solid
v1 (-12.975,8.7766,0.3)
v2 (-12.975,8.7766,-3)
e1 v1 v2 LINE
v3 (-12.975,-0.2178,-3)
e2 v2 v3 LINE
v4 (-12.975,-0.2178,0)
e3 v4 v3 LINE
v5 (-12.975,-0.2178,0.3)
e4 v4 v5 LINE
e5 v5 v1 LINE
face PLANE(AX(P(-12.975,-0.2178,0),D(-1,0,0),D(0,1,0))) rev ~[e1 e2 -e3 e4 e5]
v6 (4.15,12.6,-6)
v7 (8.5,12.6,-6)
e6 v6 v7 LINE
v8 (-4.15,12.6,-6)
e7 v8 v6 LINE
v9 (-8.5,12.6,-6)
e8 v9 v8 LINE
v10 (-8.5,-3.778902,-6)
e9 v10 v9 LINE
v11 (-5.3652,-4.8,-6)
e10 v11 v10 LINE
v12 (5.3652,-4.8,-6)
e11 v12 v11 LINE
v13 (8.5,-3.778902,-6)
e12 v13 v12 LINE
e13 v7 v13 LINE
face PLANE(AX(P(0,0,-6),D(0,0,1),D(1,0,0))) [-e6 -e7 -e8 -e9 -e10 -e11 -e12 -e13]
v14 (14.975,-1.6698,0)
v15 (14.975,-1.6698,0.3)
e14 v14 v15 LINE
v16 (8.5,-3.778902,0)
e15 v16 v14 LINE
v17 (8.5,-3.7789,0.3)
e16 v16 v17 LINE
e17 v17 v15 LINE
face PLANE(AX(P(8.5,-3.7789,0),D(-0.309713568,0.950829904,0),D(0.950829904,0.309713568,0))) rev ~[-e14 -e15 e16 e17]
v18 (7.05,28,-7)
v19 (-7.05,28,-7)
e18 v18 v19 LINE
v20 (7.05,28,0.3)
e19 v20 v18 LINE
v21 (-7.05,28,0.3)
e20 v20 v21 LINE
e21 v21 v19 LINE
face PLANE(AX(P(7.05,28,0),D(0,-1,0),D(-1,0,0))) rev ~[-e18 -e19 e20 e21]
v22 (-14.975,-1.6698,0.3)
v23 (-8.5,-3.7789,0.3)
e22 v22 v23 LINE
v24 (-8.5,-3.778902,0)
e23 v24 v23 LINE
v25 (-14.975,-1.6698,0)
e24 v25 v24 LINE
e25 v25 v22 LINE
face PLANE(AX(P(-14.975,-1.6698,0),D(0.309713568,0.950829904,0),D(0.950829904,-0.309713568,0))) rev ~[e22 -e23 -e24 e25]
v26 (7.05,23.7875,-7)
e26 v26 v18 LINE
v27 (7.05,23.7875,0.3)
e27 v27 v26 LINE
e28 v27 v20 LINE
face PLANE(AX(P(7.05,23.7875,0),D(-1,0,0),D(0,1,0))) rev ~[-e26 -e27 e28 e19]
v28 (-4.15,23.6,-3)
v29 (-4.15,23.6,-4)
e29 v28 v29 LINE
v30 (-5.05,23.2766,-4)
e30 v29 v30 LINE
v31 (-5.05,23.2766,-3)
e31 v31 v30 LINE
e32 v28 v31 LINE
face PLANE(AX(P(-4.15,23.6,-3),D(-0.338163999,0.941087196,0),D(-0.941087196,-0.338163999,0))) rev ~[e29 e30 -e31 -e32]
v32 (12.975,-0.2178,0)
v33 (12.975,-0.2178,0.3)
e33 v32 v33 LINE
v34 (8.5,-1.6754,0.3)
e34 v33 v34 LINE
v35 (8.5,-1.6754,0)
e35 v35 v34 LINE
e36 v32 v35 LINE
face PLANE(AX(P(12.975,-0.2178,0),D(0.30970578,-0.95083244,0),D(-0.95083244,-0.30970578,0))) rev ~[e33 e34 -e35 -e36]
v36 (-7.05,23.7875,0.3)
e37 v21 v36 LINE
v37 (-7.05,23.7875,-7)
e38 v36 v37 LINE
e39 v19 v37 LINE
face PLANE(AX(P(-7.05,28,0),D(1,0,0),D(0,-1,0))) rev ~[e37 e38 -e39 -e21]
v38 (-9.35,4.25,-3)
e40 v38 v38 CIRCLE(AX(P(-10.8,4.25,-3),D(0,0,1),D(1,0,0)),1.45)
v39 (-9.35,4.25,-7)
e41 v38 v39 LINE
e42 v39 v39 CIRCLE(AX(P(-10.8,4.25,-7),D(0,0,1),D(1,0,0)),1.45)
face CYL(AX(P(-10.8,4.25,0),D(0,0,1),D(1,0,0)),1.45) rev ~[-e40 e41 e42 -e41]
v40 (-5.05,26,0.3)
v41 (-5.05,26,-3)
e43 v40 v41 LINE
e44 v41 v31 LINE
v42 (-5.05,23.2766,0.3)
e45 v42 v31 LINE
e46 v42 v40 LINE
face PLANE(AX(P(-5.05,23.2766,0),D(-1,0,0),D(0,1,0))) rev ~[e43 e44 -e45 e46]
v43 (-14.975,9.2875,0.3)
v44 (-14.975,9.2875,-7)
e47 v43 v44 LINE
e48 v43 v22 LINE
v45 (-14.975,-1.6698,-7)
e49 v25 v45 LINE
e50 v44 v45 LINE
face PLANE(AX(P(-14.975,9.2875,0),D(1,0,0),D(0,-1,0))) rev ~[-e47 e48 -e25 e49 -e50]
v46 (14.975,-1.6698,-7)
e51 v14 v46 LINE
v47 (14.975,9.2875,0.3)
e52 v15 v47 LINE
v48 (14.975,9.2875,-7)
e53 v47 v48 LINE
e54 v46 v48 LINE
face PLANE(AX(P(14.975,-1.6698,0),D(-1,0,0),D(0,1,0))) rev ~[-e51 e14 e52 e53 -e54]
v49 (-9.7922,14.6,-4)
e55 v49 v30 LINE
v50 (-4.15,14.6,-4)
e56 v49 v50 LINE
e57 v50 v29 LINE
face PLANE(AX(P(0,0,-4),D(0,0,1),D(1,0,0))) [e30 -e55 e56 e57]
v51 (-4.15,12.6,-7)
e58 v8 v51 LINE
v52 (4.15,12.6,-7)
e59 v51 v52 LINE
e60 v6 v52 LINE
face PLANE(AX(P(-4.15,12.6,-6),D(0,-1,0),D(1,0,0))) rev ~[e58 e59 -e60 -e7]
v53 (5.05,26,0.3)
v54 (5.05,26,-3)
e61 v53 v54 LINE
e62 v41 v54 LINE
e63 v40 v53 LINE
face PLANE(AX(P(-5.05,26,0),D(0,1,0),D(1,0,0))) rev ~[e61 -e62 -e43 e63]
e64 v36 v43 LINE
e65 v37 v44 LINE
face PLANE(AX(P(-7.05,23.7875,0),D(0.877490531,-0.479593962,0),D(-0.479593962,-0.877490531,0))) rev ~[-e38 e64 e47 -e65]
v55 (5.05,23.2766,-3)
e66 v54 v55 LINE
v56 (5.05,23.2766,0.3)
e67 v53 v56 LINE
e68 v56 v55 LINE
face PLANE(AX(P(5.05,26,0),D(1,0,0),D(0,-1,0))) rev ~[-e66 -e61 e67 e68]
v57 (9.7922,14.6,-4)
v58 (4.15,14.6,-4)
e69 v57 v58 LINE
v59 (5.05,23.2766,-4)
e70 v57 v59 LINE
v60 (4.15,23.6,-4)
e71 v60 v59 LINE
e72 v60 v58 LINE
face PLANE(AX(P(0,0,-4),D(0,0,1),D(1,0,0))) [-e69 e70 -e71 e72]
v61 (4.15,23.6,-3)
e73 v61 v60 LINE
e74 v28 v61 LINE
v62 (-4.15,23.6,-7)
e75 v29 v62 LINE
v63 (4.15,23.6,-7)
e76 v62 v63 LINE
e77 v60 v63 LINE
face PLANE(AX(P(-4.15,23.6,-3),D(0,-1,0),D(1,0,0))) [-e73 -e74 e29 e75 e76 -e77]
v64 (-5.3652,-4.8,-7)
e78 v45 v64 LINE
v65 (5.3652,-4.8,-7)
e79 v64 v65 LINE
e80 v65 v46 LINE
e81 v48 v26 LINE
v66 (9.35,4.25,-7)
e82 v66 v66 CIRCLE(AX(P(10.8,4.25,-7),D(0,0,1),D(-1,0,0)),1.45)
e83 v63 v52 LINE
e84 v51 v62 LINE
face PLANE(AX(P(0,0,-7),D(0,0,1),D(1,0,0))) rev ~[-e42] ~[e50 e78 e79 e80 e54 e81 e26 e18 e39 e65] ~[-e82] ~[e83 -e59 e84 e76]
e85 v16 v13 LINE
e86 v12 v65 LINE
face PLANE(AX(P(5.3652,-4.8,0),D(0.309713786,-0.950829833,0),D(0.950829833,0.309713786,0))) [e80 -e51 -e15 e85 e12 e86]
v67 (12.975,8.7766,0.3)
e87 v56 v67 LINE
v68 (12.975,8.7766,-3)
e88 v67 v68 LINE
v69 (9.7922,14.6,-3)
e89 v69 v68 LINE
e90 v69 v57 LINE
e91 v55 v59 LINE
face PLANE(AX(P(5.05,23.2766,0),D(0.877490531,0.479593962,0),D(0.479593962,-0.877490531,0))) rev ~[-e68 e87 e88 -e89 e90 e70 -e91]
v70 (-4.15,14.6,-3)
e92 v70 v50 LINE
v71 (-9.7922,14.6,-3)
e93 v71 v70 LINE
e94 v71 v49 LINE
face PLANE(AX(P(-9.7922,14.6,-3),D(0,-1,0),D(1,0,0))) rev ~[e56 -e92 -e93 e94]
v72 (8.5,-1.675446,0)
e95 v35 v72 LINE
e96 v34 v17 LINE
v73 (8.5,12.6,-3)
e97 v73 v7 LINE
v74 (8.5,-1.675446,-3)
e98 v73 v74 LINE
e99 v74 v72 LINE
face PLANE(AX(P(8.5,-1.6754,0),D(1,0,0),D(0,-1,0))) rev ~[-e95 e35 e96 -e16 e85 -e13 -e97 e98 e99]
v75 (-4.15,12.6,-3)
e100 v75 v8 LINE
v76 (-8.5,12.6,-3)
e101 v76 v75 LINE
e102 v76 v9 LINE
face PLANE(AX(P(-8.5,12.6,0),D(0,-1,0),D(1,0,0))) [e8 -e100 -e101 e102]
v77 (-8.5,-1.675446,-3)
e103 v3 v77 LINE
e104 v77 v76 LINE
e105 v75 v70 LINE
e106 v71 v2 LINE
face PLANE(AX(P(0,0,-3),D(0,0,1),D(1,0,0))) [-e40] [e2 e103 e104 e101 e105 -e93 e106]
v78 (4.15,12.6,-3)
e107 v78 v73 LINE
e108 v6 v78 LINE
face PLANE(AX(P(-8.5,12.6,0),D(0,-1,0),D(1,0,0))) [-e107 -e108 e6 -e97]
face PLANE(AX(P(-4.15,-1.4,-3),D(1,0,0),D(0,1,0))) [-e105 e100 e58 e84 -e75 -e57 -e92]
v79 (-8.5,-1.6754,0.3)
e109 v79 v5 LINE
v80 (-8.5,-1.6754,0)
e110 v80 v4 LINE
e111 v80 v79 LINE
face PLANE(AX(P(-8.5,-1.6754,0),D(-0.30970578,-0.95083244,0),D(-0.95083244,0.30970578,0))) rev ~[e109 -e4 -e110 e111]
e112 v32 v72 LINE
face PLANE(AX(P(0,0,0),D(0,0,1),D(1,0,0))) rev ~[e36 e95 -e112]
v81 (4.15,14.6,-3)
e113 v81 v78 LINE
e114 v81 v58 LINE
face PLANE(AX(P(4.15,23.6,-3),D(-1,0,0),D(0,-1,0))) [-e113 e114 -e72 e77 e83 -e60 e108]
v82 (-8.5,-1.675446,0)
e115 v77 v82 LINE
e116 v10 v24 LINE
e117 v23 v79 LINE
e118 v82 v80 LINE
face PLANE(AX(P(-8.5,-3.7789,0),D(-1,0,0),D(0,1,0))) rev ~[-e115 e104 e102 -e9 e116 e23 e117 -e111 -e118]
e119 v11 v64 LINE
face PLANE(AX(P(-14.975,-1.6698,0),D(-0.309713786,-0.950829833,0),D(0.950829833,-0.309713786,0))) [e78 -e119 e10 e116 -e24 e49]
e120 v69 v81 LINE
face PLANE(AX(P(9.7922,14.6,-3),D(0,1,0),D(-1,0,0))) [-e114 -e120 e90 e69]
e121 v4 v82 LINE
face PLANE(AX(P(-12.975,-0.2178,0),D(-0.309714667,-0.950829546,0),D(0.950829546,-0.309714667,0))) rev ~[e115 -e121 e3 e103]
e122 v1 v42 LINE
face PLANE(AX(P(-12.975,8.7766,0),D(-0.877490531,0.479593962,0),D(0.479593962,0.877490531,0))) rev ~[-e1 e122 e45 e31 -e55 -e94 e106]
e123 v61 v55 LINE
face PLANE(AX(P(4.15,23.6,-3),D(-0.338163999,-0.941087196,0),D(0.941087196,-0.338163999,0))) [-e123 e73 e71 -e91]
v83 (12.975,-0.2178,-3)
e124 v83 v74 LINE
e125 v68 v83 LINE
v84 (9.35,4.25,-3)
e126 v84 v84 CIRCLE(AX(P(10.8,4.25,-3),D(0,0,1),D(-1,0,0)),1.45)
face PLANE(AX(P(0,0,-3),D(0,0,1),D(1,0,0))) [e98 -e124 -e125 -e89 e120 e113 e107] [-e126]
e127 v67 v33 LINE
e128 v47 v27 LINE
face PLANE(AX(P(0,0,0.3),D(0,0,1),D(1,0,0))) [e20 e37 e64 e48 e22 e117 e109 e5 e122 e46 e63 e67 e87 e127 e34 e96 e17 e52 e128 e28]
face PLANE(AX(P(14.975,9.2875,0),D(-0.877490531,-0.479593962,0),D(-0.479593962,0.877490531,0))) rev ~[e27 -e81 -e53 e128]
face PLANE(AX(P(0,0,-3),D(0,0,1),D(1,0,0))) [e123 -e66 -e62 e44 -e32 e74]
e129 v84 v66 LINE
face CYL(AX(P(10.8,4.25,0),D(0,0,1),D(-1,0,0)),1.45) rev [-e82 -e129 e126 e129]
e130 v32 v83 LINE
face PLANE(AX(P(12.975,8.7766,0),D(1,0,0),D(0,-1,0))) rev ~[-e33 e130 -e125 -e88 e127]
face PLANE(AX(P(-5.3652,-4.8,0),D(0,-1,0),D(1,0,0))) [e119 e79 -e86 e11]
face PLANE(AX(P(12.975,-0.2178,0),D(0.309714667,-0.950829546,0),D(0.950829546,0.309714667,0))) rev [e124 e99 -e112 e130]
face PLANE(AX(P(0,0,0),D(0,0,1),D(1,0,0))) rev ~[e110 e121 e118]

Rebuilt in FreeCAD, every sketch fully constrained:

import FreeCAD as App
import Part
import Sketcher
Q = App.Units.Quantity

doc = App.newDocument("Part")
body = doc.addObject("PartDesign::Body", "Body")

sketch1 = doc.addObject("Sketcher::SketchObject", "Sketch")
body.addObject(sketch1)
sketch1.AttachmentSupport = (doc.XY_Plane, [""])
sketch1.MapMode = "FlatFace"
sketch1.addGeometry([
    Part.LineSegment(App.Vector(20, 30, 0), App.Vector(-20, 30, 0)),
    Part.LineSegment(App.Vector(-20, 30, 0), App.Vector(-20, -10, 0)),
    Part.LineSegment(App.Vector(-20, -10, 0), App.Vector(20, -10, 0)),
    Part.LineSegment(App.Vector(20, -10, 0), App.Vector(20, 30, 0)),
], False)
sketch1.addConstraint([
    Sketcher.Constraint("Coincident", 0, 2, 1, 1),
    Sketcher.Constraint("Coincident", 1, 2, 2, 1),
    Sketcher.Constraint("Coincident", 2, 2, 3, 1),
    Sketcher.Constraint("Coincident", 3, 2, 0, 1),
    Sketcher.Constraint("Horizontal", 0),
    Sketcher.Constraint("Vertical", 1),
    Sketcher.Constraint("Horizontal", 2),
    Sketcher.Constraint("Vertical", 3),
    Sketcher.Constraint("Equal", 2, 1),
    Sketcher.Constraint("DistanceX", 0, 2, 0, 1, 40.0),
    Sketcher.Constraint("DistanceY", 1, 2, -1, 1, 10.0),
    Sketcher.Constraint("DistanceX", 0, 2, -1, 1, 20.0),
])
pad1 = doc.addObject("PartDesign::Pad", "Pad")
body.addObject(pad1)
pad1.Profile = sketch1
pad1.Length = 7
pad1.Reversed = True

sketch2 = doc.addObject("Sketcher::SketchObject", "Sketch001")
body.addObject(sketch2)
sketch2.AttachmentSupport = (doc.XY_Plane, [""])
sketch2.MapMode = "FlatFace"
sketch2.addGeometry([
    Part.LineSegment(App.Vector(0, -2.8, 0), App.Vector(0, 26, 0)),
    Part.LineSegment(App.Vector(0, 26, 0), App.Vector(-5, 26, 0)),
    Part.LineSegment(App.Vector(-5, 26, 0), App.Vector(-5, 23.3, 0)),
    Part.LineSegment(App.Vector(-5, 23.3, 0), App.Vector(-13, 8.8, 0)),
    Part.LineSegment(App.Vector(-13, 8.8, 0), App.Vector(-13, -0.2, 0)),
    Part.LineSegment(App.Vector(-13, -0.2, 0), App.Vector(-5, -2.8, 0)),
    Part.LineSegment(App.Vector(-5, -2.8, 0), App.Vector(0, -2.8, 0)),
    Part.Circle(App.Vector(-10.8, 4.2, 0), App.Vector(0, 0, 1), 1.2),
], False)
sketch2.addConstraint([
    Sketcher.Constraint("Coincident", 0, 2, 1, 1),
    Sketcher.Constraint("Coincident", 1, 2, 2, 1),
    Sketcher.Constraint("Coincident", 2, 2, 3, 1),
    Sketcher.Constraint("Coincident", 3, 2, 4, 1),
    Sketcher.Constraint("Coincident", 4, 2, 5, 1),
    Sketcher.Constraint("Coincident", 5, 2, 6, 1),
    Sketcher.Constraint("Coincident", 6, 2, 0, 1),
    Sketcher.Constraint("Vertical", 0),
    Sketcher.Constraint("Horizontal", 1),
    Sketcher.Constraint("Vertical", 2),
    Sketcher.Constraint("Vertical", 4),
    Sketcher.Constraint("Horizontal", 6),
    Sketcher.Constraint("PointOnObject", 0, 2, -2),
    Sketcher.Constraint("Diameter", 7, 2.5),
    Sketcher.Constraint("DistanceX", 7, 3, -1, 1, 10.8),
    Sketcher.Constraint("DistanceY", 0, 1, 0, 2, 28.8),
    Sketcher.Constraint("DistanceY", -1, 1, 0, 2, 26.0),
    Sketcher.Constraint("DistanceX", 1, 2, 1, 1, 5.05),
    Sketcher.Constraint("Angle", 3, Q("-118.659 deg")),
    Sketcher.Constraint("DistanceY", 3, 2, 2, 2, 14.5),
    Sketcher.Constraint("DistanceY", -1, 1, 7, 3, 4.25),
    Sketcher.Constraint("DistanceX", 6, 1, 6, 2, 5.0476),
    Sketcher.Constraint("DistanceY", 2, 2, 2, 1, 2.7234),
    Sketcher.Constraint("DistanceY", 4, 2, 4, 1, 8.9944),
])
pocket1 = doc.addObject("PartDesign::Pocket", "Pocket")
body.addObject(pocket1)
pocket1.Profile = sketch2
pocket1.Length = 3

sketch3 = doc.addObject("Sketcher::SketchObject", "Sketch002")
body.addObject(sketch3)
sketch3.AttachmentSupport = (doc.XY_Plane, [""])
sketch3.MapMode = "FlatFace"
sketch3.addGeometry(Part.Circle(App.Vector(-10.8, 4.2, 0), App.Vector(0, 0, 1), 1.4), False)
sketch3.addConstraint([
    Sketcher.Constraint("Diameter", 0, 2.9),
    Sketcher.Constraint("DistanceX", 0, 3, -1, 1, 10.8),
    Sketcher.Constraint("DistanceY", -1, 1, 0, 3, 4.25),
])
pocket2 = doc.addObject("PartDesign::Pocket", "Pocket001")
body.addObject(pocket2)
pocket2.Profile = sketch3
pocket2.Type = "ThroughAll"
doc.recompute()

mirrored = doc.addObject("PartDesign::Mirrored", "Mirrored")
body.addObject(mirrored)
mirrored.Originals = [pocket1, pocket2]
mirrored.MirrorPlane = (doc.YZ_Plane, [""])
body.Tip = mirrored

sketch4 = doc.addObject("Sketcher::SketchObject", "Sketch003")
body.addObject(sketch4)
sketch4.AttachmentSupport = (doc.XY_Plane, [""])
sketch4.MapMode = "FlatFace"
sketch4.AttachmentOffset = App.Placement(App.Vector(0, 0, -3), App.Rotation())
sketch4.addGeometry([
    Part.LineSegment(App.Vector(4, 24, 0), App.Vector(-4, 24, 0)),
    Part.LineSegment(App.Vector(-4, 24, 0), App.Vector(-4, -1, 0)),
    Part.LineSegment(App.Vector(-4, -1, 0), App.Vector(4, -1, 0)),
    Part.LineSegment(App.Vector(4, -1, 0), App.Vector(4, 24, 0)),
], False)
sketch4.addConstraint([
    Sketcher.Constraint("Coincident", 0, 2, 1, 1),
    Sketcher.Constraint("Coincident", 1, 2, 2, 1),
    Sketcher.Constraint("Coincident", 2, 2, 3, 1),
    Sketcher.Constraint("Coincident", 3, 2, 0, 1),
    Sketcher.Constraint("Horizontal", 0),
    Sketcher.Constraint("Vertical", 1),
    Sketcher.Constraint("Horizontal", 2),
    Sketcher.Constraint("Vertical", 3),
    Sketcher.Constraint("DistanceY", 1, 2, 1, 1, 25.0),
    Sketcher.Constraint("DistanceX", 0, 2, 0, 1, 8.3),
    Sketcher.Constraint("DistanceY", 1, 2, -1, 1, 1.4),
    Sketcher.Constraint("DistanceX", 0, 2, -1, 1, 4.15),
])
pocket3 = doc.addObject("PartDesign::Pocket", "Pocket002")
body.addObject(pocket3)
pocket3.Profile = sketch4
pocket3.Type = "ThroughAll"

sketch5 = doc.addObject("Sketcher::SketchObject", "Sketch004")
body.addObject(sketch5)
sketch5.AttachmentSupport = (doc.XY_Plane, [""])
sketch5.MapMode = "FlatFace"
sketch5.addGeometry([
    Part.LineSegment(App.Vector(20, 30, 0), App.Vector(-20, 30, 0)),
    Part.LineSegment(App.Vector(-20, 30, 0), App.Vector(-20, -10, 0)),
    Part.LineSegment(App.Vector(-20, -10, 0), App.Vector(20, -10, 0)),
    Part.LineSegment(App.Vector(20, -10, 0), App.Vector(20, 30, 0)),
    Part.LineSegment(App.Vector(-15, -1.7, 0), App.Vector(-15, 9.3, 0)),
    Part.LineSegment(App.Vector(-15, 9.3, 0), App.Vector(-7, 23.8, 0)),
    Part.LineSegment(App.Vector(-7, 23.8, 0), App.Vector(-7, 28, 0)),
    Part.LineSegment(App.Vector(-7, 28, 0), App.Vector(7, 28, 0)),
    Part.LineSegment(App.Vector(7, 28, 0), App.Vector(7, 23.8, 0)),
    Part.LineSegment(App.Vector(7, 23.8, 0), App.Vector(15, 9.3, 0)),
    Part.LineSegment(App.Vector(15, 9.3, 0), App.Vector(15, -1.7, 0)),
    Part.LineSegment(App.Vector(15, -1.7, 0), App.Vector(5.4, -4.8, 0)),
    Part.LineSegment(App.Vector(5.4, -4.8, 0), App.Vector(-5.4, -4.8, 0)),
    Part.LineSegment(App.Vector(-5.4, -4.8, 0), App.Vector(-15, -1.7, 0)),
], False)
sketch5.addConstraint([
    Sketcher.Constraint("Coincident", 0, 2, 1, 1),
    Sketcher.Constraint("Coincident", 1, 2, 2, 1),
    Sketcher.Constraint("Coincident", 2, 2, 3, 1),
    Sketcher.Constraint("Coincident", 3, 2, 0, 1),
    Sketcher.Constraint("Coincident", 4, 2, 5, 1),
    Sketcher.Constraint("Coincident", 5, 2, 6, 1),
    Sketcher.Constraint("Coincident", 6, 2, 7, 1),
    Sketcher.Constraint("Coincident", 7, 2, 8, 1),
    Sketcher.Constraint("Coincident", 8, 2, 9, 1),
    Sketcher.Constraint("Coincident", 9, 2, 10, 1),
    Sketcher.Constraint("Coincident", 10, 2, 11, 1),
    Sketcher.Constraint("Coincident", 11, 2, 12, 1),
    Sketcher.Constraint("Coincident", 12, 2, 13, 1),
    Sketcher.Constraint("Coincident", 13, 2, 4, 1),
    Sketcher.Constraint("Horizontal", 0),
    Sketcher.Constraint("Vertical", 1),
    Sketcher.Constraint("Horizontal", 2),
    Sketcher.Constraint("Vertical", 3),
    Sketcher.Constraint("Vertical", 4),
    Sketcher.Constraint("Vertical", 6),
    Sketcher.Constraint("Horizontal", 7),
    Sketcher.Constraint("Vertical", 8),
    Sketcher.Constraint("Vertical", 10),
    Sketcher.Constraint("Horizontal", 12),
    Sketcher.Constraint("Symmetric", 5, 2, 8, 2, -2),
    Sketcher.Constraint("Symmetric", 4, 2, 9, 2, -2),
    Sketcher.Constraint("Horizontal", 10, 2, 13, 2),
    Sketcher.Constraint("Equal", 2, 1),
    Sketcher.Constraint("Equal", 11, 13),
    Sketcher.Constraint("DistanceY", 6, 2, 0, 2, 2.0),
    Sketcher.Constraint("DistanceX", 0, 2, 0, 1, 40.0),
    Sketcher.Constraint("DistanceX", 7, 1, 7, 2, 14.1),
    Sketcher.Constraint("DistanceX", 0, 2, -1, 1, 20.0),
    Sketcher.Constraint("DistanceY", -1, 1, 0, 2, 30.0),
    Sketcher.Constraint("DistanceY", 11, 2, -1, 1, 4.8),
    Sketcher.Constraint("Angle", 5, Q("61.341 deg")),
    Sketcher.Constraint("DistanceY", 4, 2, 5, 2, 14.5),
    Sketcher.Constraint("DistanceX", 12, 2, 12, 1, 10.7304),
    Sketcher.Constraint("DistanceY", 4, 1, 4, 2, 10.9573),
    Sketcher.Constraint("DistanceY", 6, 1, 6, 2, 4.2125),
])
pocket4 = doc.addObject("PartDesign::Pocket", "Pocket003")
body.addObject(pocket4)
pocket4.Profile = sketch5
pocket4.Type = "ThroughAll"

sketch6 = doc.addObject("Sketcher::SketchObject", "Sketch005")
body.addObject(sketch6)
sketch6.AttachmentSupport = (doc.XY_Plane, [""])
sketch6.MapMode = "FlatFace"
sketch6.AttachmentOffset = App.Placement(App.Vector(0, 0, -3), App.Rotation())
sketch6.addGeometry([
    Part.LineSegment(App.Vector(-9.8, 14.6, 0), App.Vector(-4.2, 14.6, 0)),
    Part.LineSegment(App.Vector(-4.2, 14.6, 0), App.Vector(-4.2, 23.6, 0)),
    Part.LineSegment(App.Vector(-4.2, 23.6, 0), App.Vector(-5, 23.3, 0)),
    Part.LineSegment(App.Vector(-5, 23.3, 0), App.Vector(-9.8, 14.6, 0)),
    Part.LineSegment(App.Vector(5, 23.3, 0), App.Vector(4.2, 23.6, 0)),
    Part.LineSegment(App.Vector(4.2, 23.6, 0), App.Vector(4.2, 14.6, 0)),
    Part.LineSegment(App.Vector(4.2, 14.6, 0), App.Vector(9.8, 14.6, 0)),
    Part.LineSegment(App.Vector(9.8, 14.6, 0), App.Vector(5, 23.3, 0)),
], False)
sketch6.addConstraint([
    Sketcher.Constraint("Coincident", 0, 2, 1, 1),
    Sketcher.Constraint("Coincident", 1, 2, 2, 1),
    Sketcher.Constraint("Coincident", 2, 2, 3, 1),
    Sketcher.Constraint("Coincident", 3, 2, 0, 1),
    Sketcher.Constraint("Coincident", 4, 2, 5, 1),
    Sketcher.Constraint("Coincident", 5, 2, 6, 1),
    Sketcher.Constraint("Coincident", 6, 2, 7, 1),
    Sketcher.Constraint("Coincident", 7, 2, 4, 1),
    Sketcher.Constraint("Horizontal", 0),
    Sketcher.Constraint("Vertical", 1),
    Sketcher.Constraint("Vertical", 5),
    Sketcher.Constraint("Horizontal", 6),
    Sketcher.Constraint("Symmetric", 1, 2, 4, 2, -2),
    Sketcher.Constraint("Symmetric", 3, 2, 6, 2, -2),
    Sketcher.Constraint("Symmetric", 2, 2, 7, 2, -2),
    Sketcher.Constraint("DistanceY", 1, 1, 1, 2, 9.0),
    Sketcher.Constraint("DistanceY", -1, 1, 0, 2, 14.6),
    Sketcher.Constraint("Angle", 3, Q("-118.659 deg")),
    Sketcher.Constraint("DistanceX", 2, 2, 1, 2, 0.9),
    Sketcher.Constraint("DistanceX", 1, 2, 4, 2, 8.3),
    Sketcher.Constraint("Distance", 3, 9.888),
])
pocket5 = doc.addObject("PartDesign::Pocket", "Pocket004")
body.addObject(pocket5)
pocket5.Profile = sketch6
pocket5.Length = 1

sketch7 = doc.addObject("Sketcher::SketchObject", "Sketch006")
body.addObject(sketch7)
sketch7.AttachmentSupport = (doc.XY_Plane, [""])
sketch7.MapMode = "FlatFace"
sketch7.addGeometry([
    Part.LineSegment(App.Vector(8, 13, 0), App.Vector(-8, 13, 0)),
    Part.LineSegment(App.Vector(-8, 13, 0), App.Vector(-8, -7, 0)),
    Part.LineSegment(App.Vector(-8, -7, 0), App.Vector(8, -7, 0)),
    Part.LineSegment(App.Vector(8, -7, 0), App.Vector(8, 13, 0)),
], False)
sketch7.addConstraint([
    Sketcher.Constraint("Coincident", 0, 2, 1, 1),
    Sketcher.Constraint("Coincident", 1, 2, 2, 1),
    Sketcher.Constraint("Coincident", 2, 2, 3, 1),
    Sketcher.Constraint("Coincident", 3, 2, 0, 1),
    Sketcher.Constraint("Horizontal", 0),
    Sketcher.Constraint("Vertical", 1),
    Sketcher.Constraint("Horizontal", 2),
    Sketcher.Constraint("Vertical", 3),
    Sketcher.Constraint("DistanceX", 0, 2, 0, 1, 17.0),
    Sketcher.Constraint("DistanceY", 1, 2, 1, 1, 20.0),
    Sketcher.Constraint("DistanceX", 0, 2, -1, 1, 8.5),
    Sketcher.Constraint("DistanceY", -1, 1, 0, 2, 12.6),
])
pocket6 = doc.addObject("PartDesign::Pocket", "Pocket005")
body.addObject(pocket6)
pocket6.Profile = sketch7
pocket6.Length = 6

sketch8 = doc.addObject("Sketcher::SketchObject", "Sketch007")
body.addObject(sketch8)
sketch8.AttachmentSupport = (doc.XY_Plane, [""])
sketch8.MapMode = "FlatFace"
sketch8.AttachmentOffset = App.Placement(App.Vector(0, 0, -6), App.Rotation())
sketch8.addGeometry([
    Part.LineSegment(App.Vector(4, 13, 0), App.Vector(-4, 13, 0)),
    Part.LineSegment(App.Vector(-4, 13, 0), App.Vector(-4, -1, 0)),
    Part.LineSegment(App.Vector(-4, -1, 0), App.Vector(4, -1, 0)),
    Part.LineSegment(App.Vector(4, -1, 0), App.Vector(4, 13, 0)),
], False)
sketch8.addConstraint([
    Sketcher.Constraint("Coincident", 0, 2, 1, 1),
    Sketcher.Constraint("Coincident", 1, 2, 2, 1),
    Sketcher.Constraint("Coincident", 2, 2, 3, 1),
    Sketcher.Constraint("Coincident", 3, 2, 0, 1),
    Sketcher.Constraint("Horizontal", 0),
    Sketcher.Constraint("Vertical", 1),
    Sketcher.Constraint("Horizontal", 2),
    Sketcher.Constraint("Vertical", 3),
    Sketcher.Constraint("DistanceY", 1, 2, 1, 1, 14.0),
    Sketcher.Constraint("DistanceX", 0, 2, 0, 1, 8.3),
    Sketcher.Constraint("DistanceY", -1, 1, 0, 2, 12.6),
    Sketcher.Constraint("DistanceX", 0, 2, -1, 1, 4.15),
])
pad2 = doc.addObject("PartDesign::Pad", "Pad001")
body.addObject(pad2)
pad2.Profile = sketch8
pad2.Length = 1
pad2.Reversed = True

sketch9 = doc.addObject("Sketcher::SketchObject", "Sketch008")
body.addObject(sketch9)
sketch9.AttachmentSupport = (doc.XY_Plane, [""])
sketch9.MapMode = "FlatFace"
sketch9.addGeometry([
    Part.LineSegment(App.Vector(13, -0.2, 0), App.Vector(8.5, -1.7, 0)),
    Part.LineSegment(App.Vector(8.5, -1.7, 0), App.Vector(8.5, -3.8, 0)),
    Part.LineSegment(App.Vector(8.5, -3.8, 0), App.Vector(15, -1.7, 0)),
    Part.LineSegment(App.Vector(15, -1.7, 0), App.Vector(15, 9.3, 0)),
    Part.LineSegment(App.Vector(15, 9.3, 0), App.Vector(7, 23.8, 0)),
    Part.LineSegment(App.Vector(7, 23.8, 0), App.Vector(7, 28, 0)),
    Part.LineSegment(App.Vector(7, 28, 0), App.Vector(-7, 28, 0)),
    Part.LineSegment(App.Vector(-7, 28, 0), App.Vector(-7, 23.8, 0)),
    Part.LineSegment(App.Vector(-7, 23.8, 0), App.Vector(-15, 9.3, 0)),
    Part.LineSegment(App.Vector(-15, 9.3, 0), App.Vector(-15, -1.7, 0)),
    Part.LineSegment(App.Vector(-15, -1.7, 0), App.Vector(-8.5, -3.8, 0)),
    Part.LineSegment(App.Vector(-8.5, -3.8, 0), App.Vector(-8.5, -1.7, 0)),
    Part.LineSegment(App.Vector(-8.5, -1.7, 0), App.Vector(-13, -0.2, 0)),
    Part.LineSegment(App.Vector(-13, -0.2, 0), App.Vector(-13, 8.8, 0)),
    Part.LineSegment(App.Vector(-13, 8.8, 0), App.Vector(-5, 23.3, 0)),
    Part.LineSegment(App.Vector(-5, 23.3, 0), App.Vector(-5, 26, 0)),
    Part.LineSegment(App.Vector(-5, 26, 0), App.Vector(5, 26, 0)),
    Part.LineSegment(App.Vector(5, 26, 0), App.Vector(5, 23.3, 0)),
    Part.LineSegment(App.Vector(5, 23.3, 0), App.Vector(13, 8.8, 0)),
    Part.LineSegment(App.Vector(13, 8.8, 0), App.Vector(13, -0.2, 0)),
], False)
sketch9.addConstraint([
    Sketcher.Constraint("Coincident", 0, 2, 1, 1),
    Sketcher.Constraint("Coincident", 1, 2, 2, 1),
    Sketcher.Constraint("Coincident", 2, 2, 3, 1),
    Sketcher.Constraint("Coincident", 3, 2, 4, 1),
    Sketcher.Constraint("Coincident", 4, 2, 5, 1),
    Sketcher.Constraint("Coincident", 5, 2, 6, 1),
    Sketcher.Constraint("Coincident", 6, 2, 7, 1),
    Sketcher.Constraint("Coincident", 7, 2, 8, 1),
    Sketcher.Constraint("Coincident", 8, 2, 9, 1),
    Sketcher.Constraint("Coincident", 9, 2, 10, 1),
    Sketcher.Constraint("Coincident", 10, 2, 11, 1),
    Sketcher.Constraint("Coincident", 11, 2, 12, 1),
    Sketcher.Constraint("Coincident", 12, 2, 13, 1),
    Sketcher.Constraint("Coincident", 13, 2, 14, 1),
    Sketcher.Constraint("Coincident", 14, 2, 15, 1),
    Sketcher.Constraint("Coincident", 15, 2, 16, 1),
    Sketcher.Constraint("Coincident", 16, 2, 17, 1),
    Sketcher.Constraint("Coincident", 17, 2, 18, 1),
    Sketcher.Constraint("Coincident", 18, 2, 19, 1),
    Sketcher.Constraint("Coincident", 19, 2, 0, 1),
    Sketcher.Constraint("Vertical", 1),
    Sketcher.Constraint("Vertical", 3),
    Sketcher.Constraint("Vertical", 5),
    Sketcher.Constraint("Horizontal", 6),
    Sketcher.Constraint("Vertical", 7),
    Sketcher.Constraint("Vertical", 9),
    Sketcher.Constraint("Vertical", 11),
    Sketcher.Constraint("Vertical", 13),
    Sketcher.Constraint("Vertical", 15),
    Sketcher.Constraint("Horizontal", 16),
    Sketcher.Constraint("Vertical", 17),
    Sketcher.Constraint("Vertical", 19),
    Sketcher.Constraint("Symmetric", 4, 2, 7, 2, -2),
    Sketcher.Constraint("Symmetric", 3, 2, 8, 2, -2),
    Sketcher.Constraint("Symmetric", 1, 2, 10, 2, -2),
    Sketcher.Constraint("Symmetric", 14, 2, 17, 2, -2),
    Sketcher.Constraint("Symmetric", 13, 2, 18, 2, -2),
    Sketcher.Constraint("Parallel", 0, 2),
    Sketcher.Constraint("Parallel", 10, 12),
    Sketcher.Constraint("Parallel", 8, 14),
    Sketcher.Constraint("Horizontal", 2, 2, 9, 2),
    Sketcher.Constraint("Horizontal", 0, 2, 11, 2),
    Sketcher.Constraint("Equal", 8, 14),
    Sketcher.Constraint("DistanceX", 6, 2, 6, 1, 14.1),
    Sketcher.Constraint("DistanceX", 16, 1, 16, 2, 10.1),
    Sketcher.Constraint("DistanceY", -1, 1, 5, 2, 28.0),
    Sketcher.Constraint("DistanceY", -1, 1, 15, 2, 26.0),
    Sketcher.Constraint("DistanceX", 10, 2, 1, 2, 17.0),
    Sketcher.Constraint("Angle", 4, Q("118.659 deg")),
    Sketcher.Constraint("DistanceY", 3, 2, 4, 2, 14.5),
    Sketcher.Constraint("DistanceY", 1, 2, 1, 1, 2.1035),
    Sketcher.Constraint("DistanceY", 3, 1, 3, 2, 10.9573),
    Sketcher.Constraint("DistanceY", 5, 1, 5, 2, 4.2125),
    Sketcher.Constraint("DistanceY", 13, 1, 13, 2, 8.9944),
    Sketcher.Constraint("DistanceY", 15, 1, 15, 2, 2.7234),
])
pad3 = doc.addObject("PartDesign::Pad", "Pad002")
body.addObject(pad3)
pad3.Profile = sketch9
pad3.Length = 0.3

doc.recompute()
